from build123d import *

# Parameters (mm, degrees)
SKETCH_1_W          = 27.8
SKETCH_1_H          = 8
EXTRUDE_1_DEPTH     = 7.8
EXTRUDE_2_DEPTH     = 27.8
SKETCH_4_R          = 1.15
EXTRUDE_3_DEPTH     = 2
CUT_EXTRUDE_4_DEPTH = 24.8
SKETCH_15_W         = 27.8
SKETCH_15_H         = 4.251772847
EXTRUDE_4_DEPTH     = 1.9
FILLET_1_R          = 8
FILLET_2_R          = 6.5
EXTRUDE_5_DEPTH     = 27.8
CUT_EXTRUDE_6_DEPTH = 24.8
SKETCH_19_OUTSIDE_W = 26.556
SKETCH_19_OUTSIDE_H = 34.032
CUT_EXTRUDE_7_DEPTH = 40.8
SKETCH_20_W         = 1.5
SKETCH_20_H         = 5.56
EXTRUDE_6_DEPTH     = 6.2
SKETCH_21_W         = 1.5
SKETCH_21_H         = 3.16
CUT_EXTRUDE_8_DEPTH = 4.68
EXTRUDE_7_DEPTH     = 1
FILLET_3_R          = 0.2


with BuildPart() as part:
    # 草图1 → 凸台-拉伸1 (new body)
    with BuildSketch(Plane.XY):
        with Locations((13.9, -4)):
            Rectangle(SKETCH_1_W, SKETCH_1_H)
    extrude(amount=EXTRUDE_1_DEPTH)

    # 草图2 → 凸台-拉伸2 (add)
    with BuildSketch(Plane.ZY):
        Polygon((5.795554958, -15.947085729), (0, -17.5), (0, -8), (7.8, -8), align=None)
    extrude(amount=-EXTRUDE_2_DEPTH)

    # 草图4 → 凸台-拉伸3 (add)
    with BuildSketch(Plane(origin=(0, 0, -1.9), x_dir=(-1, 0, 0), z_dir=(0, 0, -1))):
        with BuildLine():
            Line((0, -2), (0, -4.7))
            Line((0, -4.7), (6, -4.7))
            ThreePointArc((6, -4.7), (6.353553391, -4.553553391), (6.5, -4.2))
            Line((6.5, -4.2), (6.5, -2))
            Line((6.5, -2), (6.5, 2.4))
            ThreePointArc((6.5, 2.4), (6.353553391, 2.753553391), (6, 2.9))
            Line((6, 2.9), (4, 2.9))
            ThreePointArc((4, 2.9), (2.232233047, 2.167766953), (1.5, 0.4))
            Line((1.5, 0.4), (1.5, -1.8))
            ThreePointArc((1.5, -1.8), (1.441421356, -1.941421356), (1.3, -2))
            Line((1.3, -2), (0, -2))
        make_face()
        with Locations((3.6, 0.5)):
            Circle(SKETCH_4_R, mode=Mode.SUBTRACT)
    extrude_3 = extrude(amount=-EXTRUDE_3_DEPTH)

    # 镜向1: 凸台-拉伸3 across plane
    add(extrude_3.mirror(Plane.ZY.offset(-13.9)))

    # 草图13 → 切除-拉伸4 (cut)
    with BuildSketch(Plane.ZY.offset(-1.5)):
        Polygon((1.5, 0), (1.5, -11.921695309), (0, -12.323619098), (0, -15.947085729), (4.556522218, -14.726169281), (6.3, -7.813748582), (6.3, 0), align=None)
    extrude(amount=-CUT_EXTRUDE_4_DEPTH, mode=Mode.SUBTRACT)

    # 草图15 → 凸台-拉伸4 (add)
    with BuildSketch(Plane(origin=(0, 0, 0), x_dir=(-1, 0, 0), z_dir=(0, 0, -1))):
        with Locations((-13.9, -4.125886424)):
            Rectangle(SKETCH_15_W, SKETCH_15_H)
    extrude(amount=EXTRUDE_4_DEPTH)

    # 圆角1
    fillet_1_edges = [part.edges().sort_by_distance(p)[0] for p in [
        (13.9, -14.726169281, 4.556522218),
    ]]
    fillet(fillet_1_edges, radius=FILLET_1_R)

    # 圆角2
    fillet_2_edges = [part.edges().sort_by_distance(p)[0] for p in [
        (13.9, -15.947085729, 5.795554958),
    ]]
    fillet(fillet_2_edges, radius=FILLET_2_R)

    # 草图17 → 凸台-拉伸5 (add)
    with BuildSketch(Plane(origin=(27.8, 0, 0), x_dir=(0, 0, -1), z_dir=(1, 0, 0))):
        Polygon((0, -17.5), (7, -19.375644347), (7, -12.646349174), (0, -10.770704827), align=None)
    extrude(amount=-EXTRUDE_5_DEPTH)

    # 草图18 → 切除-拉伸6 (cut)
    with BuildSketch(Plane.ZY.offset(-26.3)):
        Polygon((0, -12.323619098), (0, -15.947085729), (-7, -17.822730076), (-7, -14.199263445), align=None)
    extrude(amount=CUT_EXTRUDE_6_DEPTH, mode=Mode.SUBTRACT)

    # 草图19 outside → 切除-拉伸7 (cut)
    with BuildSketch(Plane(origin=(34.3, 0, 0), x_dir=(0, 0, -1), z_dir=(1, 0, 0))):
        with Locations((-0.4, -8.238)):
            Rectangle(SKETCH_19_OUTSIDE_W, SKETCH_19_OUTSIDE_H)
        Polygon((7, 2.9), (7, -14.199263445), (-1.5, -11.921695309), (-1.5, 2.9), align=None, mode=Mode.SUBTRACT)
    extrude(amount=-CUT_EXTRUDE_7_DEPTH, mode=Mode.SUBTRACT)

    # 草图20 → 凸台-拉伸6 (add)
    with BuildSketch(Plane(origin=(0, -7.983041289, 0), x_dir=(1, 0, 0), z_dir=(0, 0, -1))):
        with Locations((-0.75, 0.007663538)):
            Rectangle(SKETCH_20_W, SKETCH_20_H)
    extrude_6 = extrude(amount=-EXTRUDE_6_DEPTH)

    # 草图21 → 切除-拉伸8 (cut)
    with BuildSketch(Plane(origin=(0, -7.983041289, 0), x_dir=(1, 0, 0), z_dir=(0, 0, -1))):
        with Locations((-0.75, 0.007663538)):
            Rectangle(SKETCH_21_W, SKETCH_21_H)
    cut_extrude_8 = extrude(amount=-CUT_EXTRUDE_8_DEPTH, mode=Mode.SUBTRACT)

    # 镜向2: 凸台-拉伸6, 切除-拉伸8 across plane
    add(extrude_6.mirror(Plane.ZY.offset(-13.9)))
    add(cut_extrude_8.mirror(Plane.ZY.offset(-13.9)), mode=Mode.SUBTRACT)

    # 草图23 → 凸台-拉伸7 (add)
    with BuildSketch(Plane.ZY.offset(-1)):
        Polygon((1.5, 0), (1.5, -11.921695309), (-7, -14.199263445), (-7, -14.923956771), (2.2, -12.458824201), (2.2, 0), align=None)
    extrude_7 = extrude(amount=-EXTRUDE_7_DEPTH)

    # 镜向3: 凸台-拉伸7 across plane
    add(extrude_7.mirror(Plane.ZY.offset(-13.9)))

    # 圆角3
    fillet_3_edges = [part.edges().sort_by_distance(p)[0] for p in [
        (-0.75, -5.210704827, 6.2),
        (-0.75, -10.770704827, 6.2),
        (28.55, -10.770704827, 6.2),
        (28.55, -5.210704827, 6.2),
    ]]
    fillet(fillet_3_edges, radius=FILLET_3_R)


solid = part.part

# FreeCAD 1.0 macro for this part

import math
import FreeCAD as App
import Part
import Sketcher
from FreeCAD import Vector
Q = App.Units.Quantity


def edges_at(feature, points):
    """Names of the edges that pass closest to the given points."""
    edges = feature.Shape.Edges
    near = lambda p: min(range(len(edges)), key=lambda i: edges[i].distToShape(Part.Vertex(*p))[0])
    return sorted({f"Edge{near(p) + 1}" for p in points})


def add_polygon(sketch, points):
    """Adds a closed chain of lines whose ends are joined by coincident constraints."""
    first, n = sketch.GeometryCount, len(points)
    for a, b in zip(points, points[1:] + points[:1]):
        sketch.addGeometry(Part.LineSegment(App.Vector(*a, 0), App.Vector(*b, 0)), False)
    for i in range(n):
        sketch.addConstraint(Sketcher.Constraint("Coincident", first + i, 2, first + (i + 1) % n, 1))

doc = App.newDocument("Part")
body = doc.addObject("PartDesign::Body", "Body")

# Sketch on XY plane
sketch1 = body.newObject("Sketcher::SketchObject", "Sketch")
sketch1.AttachmentSupport = (doc.getObject("XY_Plane"), [""])
sketch1.MapMode = "FlatFace"
add_polygon(sketch1, [(0, 0), (0, -8), (28, -8), (28, 0)])  # lines 0-3
sketch1.addConstraint([
    Sketcher.Constraint("Vertical", 0),
    Sketcher.Constraint("Horizontal", 1),
    Sketcher.Constraint("Vertical", 2),
    Sketcher.Constraint("Horizontal", 3),
    Sketcher.Constraint("Coincident", 3, 2, -1, 1),
    Sketcher.Constraint("DistanceY", 0, 2, 0, 1, 8.0),
    Sketcher.Constraint("DistanceX", 1, 1, 1, 2, 27.8),
])
pad1 = body.newObject("PartDesign::Pad", "Pad")
pad1.Profile = sketch1
pad1.Length = 7.8

# Sketch on YZ plane
sketch2 = body.newObject("Sketcher::SketchObject", "Sketch001")
sketch2.AttachmentSupport = (doc.getObject("YZ_Plane"), [""])
sketch2.MapMode = "FlatFace"
add_polygon(sketch2, [(-18, 0), (-16, 6), (-8, 8), (-8, 0)])  # lines 0-3
sketch2.addConstraint([
    Sketcher.Constraint("Vertical", 2),
    Sketcher.Constraint("Horizontal", 3),
    Sketcher.Constraint("PointOnObject", 2, 2, -1),
    Sketcher.Constraint("Angle", 0, Q("75 deg")),
    Sketcher.Constraint("Distance", 0, 6.0),
    Sketcher.Constraint("DistanceX", 3, 2, 3, 1, 9.5),
    Sketcher.Constraint("DistanceY", 2, 2, 2, 1, 7.8),
    Sketcher.Constraint("DistanceX", 1, 2, -1, 1, 8.0),
])
pad2 = body.newObject("PartDesign::Pad", "Pad001")
pad2.Profile = sketch2
pad2.Length = 27.8

# Sketch on XY plane
sketch3 = body.newObject("Sketcher::SketchObject", "Sketch002")
sketch3.AttachmentSupport = (doc.getObject("XY_Plane"), [""])
sketch3.MapMode = "FlatFace"
sketch3.AttachmentOffset = App.Placement(Vector(0, 0, -1.9), App.Rotation())
sketch3.addGeometry([
    Part.LineSegment(Vector(0, -2, 0), Vector(0, -4.7, 0)),  # 0
    Part.LineSegment(Vector(0, -4.7, 0), Vector(-6, -4.7, 0)),  # 1
    Part.ArcOfCircle(Part.Circle(Vector(-6, -4.2, 0), Vector(0, 0, 1), 0.5), math.radians(180), math.radians(270)),  # 2
    Part.LineSegment(Vector(-6.5, -4.2, 0), Vector(-6.5, 2.4, 0)),  # 3
    Part.ArcOfCircle(Part.Circle(Vector(-6, 2.4, 0), Vector(0, 0, 1), 0.5), math.radians(90), math.radians(180)),  # 4
    Part.LineSegment(Vector(-6, 2.9, 0), Vector(-4, 2.9, 0)),  # 5
    Part.ArcOfCircle(Part.Circle(Vector(-4, 0.4, 0), Vector(0, 0, 1), 2.5), math.radians(0), math.radians(90)),  # 6
    Part.LineSegment(Vector(-1.5, 0.4, 0), Vector(-1.5, -1.8, 0)),  # 7
    Part.ArcOfCircle(Part.Circle(Vector(-1.3, -1.8, 0), Vector(0, 0, 1), 0.2), math.radians(-180), math.radians(-90)),  # 8
    Part.LineSegment(Vector(-1.3, -2, 0), Vector(0, -2, 0)),  # 9
    Part.Circle(Vector(-3.6, 0.5, 0), Vector(0, 0, 1), 1.15),  # 10
], False)
sketch3.addConstraint([
    Sketcher.Constraint("Coincident", 0, 2, 1, 1),
    Sketcher.Constraint("Tangent", 1, 2, 2, 2),
    Sketcher.Constraint("Tangent", 2, 1, 3, 1),
    Sketcher.Constraint("Tangent", 3, 2, 4, 2),
    Sketcher.Constraint("Tangent", 4, 1, 5, 1),
    Sketcher.Constraint("Tangent", 5, 2, 6, 2),
    Sketcher.Constraint("Tangent", 6, 1, 7, 1),
    Sketcher.Constraint("Tangent", 7, 2, 8, 1),
    Sketcher.Constraint("Tangent", 8, 2, 9, 1),
    Sketcher.Constraint("Coincident", 9, 2, 0, 1),
    Sketcher.Constraint("Vertical", 0),
    Sketcher.Constraint("Horizontal", 1),
    Sketcher.Constraint("Vertical", 3),
    Sketcher.Constraint("Horizontal", 5),
    Sketcher.Constraint("Vertical", 7),
    Sketcher.Constraint("Horizontal", 9),
    Sketcher.Constraint("Equal", 2, 4),
    Sketcher.Constraint("PointOnObject", 0, 2, -2),
    Sketcher.Constraint("Diameter", 10, 2.3),
    Sketcher.Constraint("Radius", 2, 0.5),
    Sketcher.Constraint("Radius", 6, 2.5),
    Sketcher.Constraint("Radius", 8, 0.2),
    Sketcher.Constraint("DistanceX", 1, 2, 1, 1, 6.0),
    Sketcher.Constraint("DistanceX", 5, 1, 5, 2, 2.0),
    Sketcher.Constraint("DistanceY", 0, 2, 0, 1, 2.7),
    Sketcher.Constraint("DistanceY", 3, 1, 3, 2, 6.6),
    Sketcher.Constraint("DistanceY", 8, 2, -1, 1, 2.0),
    Sketcher.Constraint("DistanceX", 10, 3, -1, 1, 3.6),
    Sketcher.Constraint("DistanceY", -1, 1, 10, 3, 0.5),
])
pad3 = body.newObject("PartDesign::Pad", "Pad002")
pad3.Profile = sketch3
pad3.Length = 2
doc.recompute()

datumplane = body.newObject("PartDesign::Plane", "DatumPlane")
datumplane.AttachmentSupport = (doc.getObject("YZ_Plane"), [""])
datumplane.MapMode = "FlatFace"
datumplane.AttachmentOffset = App.Placement(Vector(0, 0, 13.9), App.Rotation())
mirrored = body.newObject("PartDesign::Mirrored", "Mirrored")
mirrored.Originals = [pad3]
mirrored.MirrorPlane = (datumplane, [""])
body.Tip = mirrored

# Sketch on YZ plane
sketch4 = body.newObject("Sketcher::SketchObject", "Sketch003")
sketch4.AttachmentSupport = (doc.getObject("YZ_Plane"), [""])
sketch4.MapMode = "FlatFace"
sketch4.AttachmentOffset = App.Placement(Vector(0, 0, 1.5), App.Rotation())
add_polygon(sketch4, [(0, 1.5), (-11.9, 1.5), (-12.3, 0), (-15.9, 0), (-14.7, 4.6), (-7.8, 6.3), (0, 6.3)])  # lines 0-6
sketch4.addConstraint([
    Sketcher.Constraint("Horizontal", 0),
    Sketcher.Constraint("Horizontal", 2),
    Sketcher.Constraint("Horizontal", 5),
    Sketcher.Constraint("Vertical", 6),
    Sketcher.Constraint("PointOnObject", 1, 2, -1),
    Sketcher.Constraint("PointOnObject", 5, 2, -2),
    Sketcher.Constraint("Parallel", 1, 3),
    Sketcher.Constraint("Angle", 1, Q("-105 deg")),
    Sketcher.Constraint("DistanceY", 6, 2, 6, 1, 4.8),
    Sketcher.Constraint("DistanceY", -1, 1, 0, 2, 1.5),
    Sketcher.Constraint("DistanceX", 5, 1, 5, 2, 7.813749),
    Sketcher.Constraint("Distance", 3, 4.717259),
    Sketcher.Constraint("DistanceX", 0, 2, 0, 1, 11.921695),
    Sketcher.Constraint("DistanceX", 2, 2, 2, 1, 3.623467),
])
pocket1 = body.newObject("PartDesign::Pocket", "Pocket")
pocket1.Profile = sketch4
pocket1.Length = 24.8
pocket1.Reversed = True

# Sketch on XY plane
sketch5 = body.newObject("Sketcher::SketchObject", "Sketch004")
sketch5.AttachmentSupport = (doc.getObject("XY_Plane"), [""])
sketch5.MapMode = "FlatFace"
add_polygon(sketch5, [(27.8, -2), (27.8, -6.3), (0, -6.3), (0, -2)])  # lines 0-3
sketch5.addConstraint([
    Sketcher.Constraint("Vertical", 0),
    Sketcher.Constraint("Horizontal", 1),
    Sketcher.Constraint("Vertical", 2),
    Sketcher.Constraint("Horizontal", 3),
    Sketcher.Constraint("PointOnObject", 1, 2, -2),
    Sketcher.Constraint("DistanceX", 1, 2, 1, 1, 27.8),
    Sketcher.Constraint("DistanceY", 2, 2, -1, 1, 2.0),
    Sketcher.Constraint("DistanceY", 0, 2, 0, 1, 4.251773),
])
pad4 = body.newObject("PartDesign::Pad", "Pad003")
pad4.Profile = sketch5
pad4.Length = 1.9
pad4.Reversed = True
doc.recompute()

fillet = body.newObject("PartDesign::Fillet", "Fillet")
fillet.Base = (pad4, edges_at(pad4, [(13.9, -14.726, 4.557)]))
fillet.Radius = 8
doc.recompute()

fillet2 = body.newObject("PartDesign::Fillet", "Fillet001")
fillet2.Base = (fillet, edges_at(fillet, [(13.9, -15.947, 5.796)]))
fillet2.Radius = 6.5

# Sketch on YZ plane
sketch6 = body.newObject("Sketcher::SketchObject", "Sketch005")
sketch6.AttachmentSupport = (doc.getObject("YZ_Plane"), [""])
sketch6.MapMode = "FlatFace"
sketch6.AttachmentOffset = App.Placement(Vector(0, 0, 27.8), App.Rotation())
add_polygon(sketch6, [(-18, 0), (-19, -7), (-13, -7), (-11, 0)])  # lines 0-3
sketch6.addConstraint([
    Sketcher.Constraint("Horizontal", 1),
    Sketcher.Constraint("Horizontal", 3),
    Sketcher.Constraint("PointOnObject", 2, 2, -1),
    Sketcher.Constraint("Parallel", 0, 2),
    Sketcher.Constraint("Angle", 0, Q("-105 deg")),
    Sketcher.Constraint("DistanceY", 0, 2, -1, 1, 7.0),
    Sketcher.Constraint("DistanceX", 3, 2, -1, 1, 17.5),
    Sketcher.Constraint("DistanceX", 1, 1, 1, 2, 6.729295),
])
pad5 = body.newObject("PartDesign::Pad", "Pad004")
pad5.Profile = sketch6
pad5.Length = 27.8
pad5.Reversed = True

# Sketch on YZ plane
sketch7 = body.newObject("Sketcher::SketchObject", "Sketch006")
sketch7.AttachmentSupport = (doc.getObject("YZ_Plane"), [""])
sketch7.MapMode = "FlatFace"
sketch7.AttachmentOffset = App.Placement(Vector(0, 0, 26.3), App.Rotation())
add_polygon(sketch7, [(-15.9, 0), (-12.3, 0), (-14.2, -7), (-17.8, -7)])  # lines 0-3
sketch7.addConstraint([
    Sketcher.Constraint("Horizontal", 0),
    Sketcher.Constraint("Horizontal", 2),
    Sketcher.Constraint("PointOnObject", 0, 2, -1),
    Sketcher.Constraint("Parallel", 1, 3),
    Sketcher.Constraint("Angle", 1, Q("-105 deg")),
    Sketcher.Constraint("DistanceY", 1, 2, -1, 1, 7.0),
    Sketcher.Constraint("DistanceX", 0, 1, 0, 2, 3.623467),
    Sketcher.Constraint("DistanceX", 0, 2, -1, 1, 12.323619),
])
pocket2 = body.newObject("PartDesign::Pocket", "Pocket001")
pocket2.Profile = sketch7
pocket2.Length = 24.8

# Sketch on YZ plane
sketch8 = body.newObject("Sketcher::SketchObject", "Sketch007")
sketch8.AttachmentSupport = (doc.getObject("YZ_Plane"), [""])
sketch8.MapMode = "FlatFace"
sketch8.AttachmentOffset = App.Placement(Vector(0, 0, 34.3), App.Rotation())
add_polygon(sketch8, [(9, 14), (-25, 14), (-25, -13), (9, -13)])  # lines 0-3
add_polygon(sketch8, [(3, 2), (3, -7), (-14, -7), (-12, 2)])  # lines 4-7
sketch8.addConstraint([
    Sketcher.Constraint("Horizontal", 0),
    Sketcher.Constraint("Vertical", 1),
    Sketcher.Constraint("Horizontal", 2),
    Sketcher.Constraint("Vertical", 3),
    Sketcher.Constraint("Vertical", 4),
    Sketcher.Constraint("Horizontal", 5),
    Sketcher.Constraint("Horizontal", 7),
    Sketcher.Constraint("Angle", 6, Q("75 deg")),
    Sketcher.Constraint("DistanceY", 4, 2, 4, 1, 8.5),
    Sketcher.Constraint("DistanceY", 4, 2, -1, 1, 7.0),
    Sketcher.Constraint("DistanceX", -1, 1, 4, 2, 2.9),
    Sketcher.Constraint("DistanceX", 0, 2, 0, 1, 34.032),
    Sketcher.Constraint("DistanceY", 1, 2, 1, 1, 26.556),
    Sketcher.Constraint("DistanceX", 0, 2, -1, 1, 25.254),
    Sketcher.Constraint("DistanceY", -1, 1, 0, 2, 13.678),
    Sketcher.Constraint("DistanceX", 5, 2, 5, 1, 17.099263),
])
pocket3 = body.newObject("PartDesign::Pocket", "Pocket002")
pocket3.Profile = sketch8
pocket3.Length = 40.8

# Sketch on XY plane
sketch9 = body.newObject("Sketcher::SketchObject", "Sketch008")
sketch9.AttachmentSupport = (doc.getObject("XY_Plane"), [""])
sketch9.MapMode = "FlatFace"
add_polygon(sketch9, [(-1.5, -10.8), (-1.5, -5.2), (0, -5.2), (0, -10.8)])  # lines 0-3
sketch9.addConstraint([
    Sketcher.Constraint("Vertical", 0),
    Sketcher.Constraint("Horizontal", 1),
    Sketcher.Constraint("Vertical", 2),
    Sketcher.Constraint("Horizontal", 3),
    Sketcher.Constraint("PointOnObject", 1, 2, -2),
    Sketcher.Constraint("DistanceX", 1, 1, 1, 2, 1.5),
    Sketcher.Constraint("DistanceY", 0, 1, 0, 2, 5.56),
    Sketcher.Constraint("DistanceY", 0, 2, -1, 1, 5.210705),
])
pad6 = body.newObject("PartDesign::Pad", "Pad005")
pad6.Profile = sketch9
pad6.Length = 6.2

# Sketch on XY plane
sketch10 = body.newObject("Sketcher::SketchObject", "Sketch009")
sketch10.AttachmentSupport = (doc.getObject("XY_Plane"), [""])
sketch10.MapMode = "FlatFace"
add_polygon(sketch10, [(-1.5, -9.6), (-1.5, -6.4), (0, -6.4), (0, -9.6)])  # lines 0-3
sketch10.addConstraint([
    Sketcher.Constraint("Vertical", 0),
    Sketcher.Constraint("Horizontal", 1),
    Sketcher.Constraint("Vertical", 2),
    Sketcher.Constraint("Horizontal", 3),
    Sketcher.Constraint("PointOnObject", 1, 2, -2),
    Sketcher.Constraint("DistanceX", 1, 1, 1, 2, 1.5),
    Sketcher.Constraint("DistanceY", 0, 1, 0, 2, 3.16),
    Sketcher.Constraint("DistanceY", 0, 2, -1, 1, 6.410705),
])
pocket4 = body.newObject("PartDesign::Pocket", "Pocket003")
pocket4.Profile = sketch10
pocket4.Length = 4.68
pocket4.Reversed = True
doc.recompute()

datumplane2 = body.newObject("PartDesign::Plane", "DatumPlane001")
datumplane2.AttachmentSupport = (doc.getObject("YZ_Plane"), [""])
datumplane2.MapMode = "FlatFace"
datumplane2.AttachmentOffset = App.Placement(Vector(0, 0, 13.9), App.Rotation())
mirrored2 = body.newObject("PartDesign::Mirrored", "Mirrored001")
mirrored2.Originals = [pad6, pocket4]
mirrored2.MirrorPlane = (datumplane2, [""])
body.Tip = mirrored2

# Sketch on YZ plane
sketch11 = body.newObject("Sketcher::SketchObject", "Sketch010")
sketch11.AttachmentSupport = (doc.getObject("YZ_Plane"), [""])
sketch11.MapMode = "FlatFace"
sketch11.AttachmentOffset = App.Placement(Vector(0, 0, 1), App.Rotation())
add_polygon(sketch11, [(0, 1.5), (-11.9, 1.5), (-14.2, -7), (-14.9, -7), (-12.5, 2.2), (0, 2.2)])  # lines 0-5
sketch11.addConstraint([
    Sketcher.Constraint("Horizontal", 0),
    Sketcher.Constraint("Horizontal", 2),
    Sketcher.Constraint("Horizontal", 4),
    Sketcher.Constraint("Vertical", 5),
    Sketcher.Constraint("PointOnObject", 4, 2, -2),
    Sketcher.Constraint("Parallel", 1, 3),
    Sketcher.Constraint("Angle", 1, Q("-105 deg")),
    Sketcher.Constraint("DistanceY", 5, 2, 5, 1, 0.7),
    Sketcher.Constraint("DistanceY", 1, 2, -1, 1, 7.0),
    Sketcher.Constraint("DistanceY", -1, 1, 0, 2, 1.5),
    Sketcher.Constraint("DistanceX", 0, 2, 0, 1, 11.921695),
    Sketcher.Constraint("DistanceX", 2, 2, 2, 1, 0.724693),
])
pad7 = body.newObject("PartDesign::Pad", "Pad006")
pad7.Profile = sketch11
pad7.Length = 1
doc.recompute()

datumplane3 = body.newObject("PartDesign::Plane", "DatumPlane002")
datumplane3.AttachmentSupport = (doc.getObject("YZ_Plane"), [""])
datumplane3.MapMode = "FlatFace"
datumplane3.AttachmentOffset = App.Placement(Vector(0, 0, 13.9), App.Rotation())
mirrored3 = body.newObject("PartDesign::Mirrored", "Mirrored002")
mirrored3.Originals = [pad7]
mirrored3.MirrorPlane = (datumplane3, [""])
body.Tip = mirrored3
doc.recompute()

fillet3 = body.newObject("PartDesign::Fillet", "Fillet002")
fillet3.Base = (mirrored3, edges_at(mirrored3, [
    (-0.75, -5.211, 6.2),
    (-0.75, -10.771, 6.2),
    (28.55, -10.771, 6.2),
    (28.55, -5.211, 6.2),
]))
fillet3.Radius = 0.2

doc.recompute()
